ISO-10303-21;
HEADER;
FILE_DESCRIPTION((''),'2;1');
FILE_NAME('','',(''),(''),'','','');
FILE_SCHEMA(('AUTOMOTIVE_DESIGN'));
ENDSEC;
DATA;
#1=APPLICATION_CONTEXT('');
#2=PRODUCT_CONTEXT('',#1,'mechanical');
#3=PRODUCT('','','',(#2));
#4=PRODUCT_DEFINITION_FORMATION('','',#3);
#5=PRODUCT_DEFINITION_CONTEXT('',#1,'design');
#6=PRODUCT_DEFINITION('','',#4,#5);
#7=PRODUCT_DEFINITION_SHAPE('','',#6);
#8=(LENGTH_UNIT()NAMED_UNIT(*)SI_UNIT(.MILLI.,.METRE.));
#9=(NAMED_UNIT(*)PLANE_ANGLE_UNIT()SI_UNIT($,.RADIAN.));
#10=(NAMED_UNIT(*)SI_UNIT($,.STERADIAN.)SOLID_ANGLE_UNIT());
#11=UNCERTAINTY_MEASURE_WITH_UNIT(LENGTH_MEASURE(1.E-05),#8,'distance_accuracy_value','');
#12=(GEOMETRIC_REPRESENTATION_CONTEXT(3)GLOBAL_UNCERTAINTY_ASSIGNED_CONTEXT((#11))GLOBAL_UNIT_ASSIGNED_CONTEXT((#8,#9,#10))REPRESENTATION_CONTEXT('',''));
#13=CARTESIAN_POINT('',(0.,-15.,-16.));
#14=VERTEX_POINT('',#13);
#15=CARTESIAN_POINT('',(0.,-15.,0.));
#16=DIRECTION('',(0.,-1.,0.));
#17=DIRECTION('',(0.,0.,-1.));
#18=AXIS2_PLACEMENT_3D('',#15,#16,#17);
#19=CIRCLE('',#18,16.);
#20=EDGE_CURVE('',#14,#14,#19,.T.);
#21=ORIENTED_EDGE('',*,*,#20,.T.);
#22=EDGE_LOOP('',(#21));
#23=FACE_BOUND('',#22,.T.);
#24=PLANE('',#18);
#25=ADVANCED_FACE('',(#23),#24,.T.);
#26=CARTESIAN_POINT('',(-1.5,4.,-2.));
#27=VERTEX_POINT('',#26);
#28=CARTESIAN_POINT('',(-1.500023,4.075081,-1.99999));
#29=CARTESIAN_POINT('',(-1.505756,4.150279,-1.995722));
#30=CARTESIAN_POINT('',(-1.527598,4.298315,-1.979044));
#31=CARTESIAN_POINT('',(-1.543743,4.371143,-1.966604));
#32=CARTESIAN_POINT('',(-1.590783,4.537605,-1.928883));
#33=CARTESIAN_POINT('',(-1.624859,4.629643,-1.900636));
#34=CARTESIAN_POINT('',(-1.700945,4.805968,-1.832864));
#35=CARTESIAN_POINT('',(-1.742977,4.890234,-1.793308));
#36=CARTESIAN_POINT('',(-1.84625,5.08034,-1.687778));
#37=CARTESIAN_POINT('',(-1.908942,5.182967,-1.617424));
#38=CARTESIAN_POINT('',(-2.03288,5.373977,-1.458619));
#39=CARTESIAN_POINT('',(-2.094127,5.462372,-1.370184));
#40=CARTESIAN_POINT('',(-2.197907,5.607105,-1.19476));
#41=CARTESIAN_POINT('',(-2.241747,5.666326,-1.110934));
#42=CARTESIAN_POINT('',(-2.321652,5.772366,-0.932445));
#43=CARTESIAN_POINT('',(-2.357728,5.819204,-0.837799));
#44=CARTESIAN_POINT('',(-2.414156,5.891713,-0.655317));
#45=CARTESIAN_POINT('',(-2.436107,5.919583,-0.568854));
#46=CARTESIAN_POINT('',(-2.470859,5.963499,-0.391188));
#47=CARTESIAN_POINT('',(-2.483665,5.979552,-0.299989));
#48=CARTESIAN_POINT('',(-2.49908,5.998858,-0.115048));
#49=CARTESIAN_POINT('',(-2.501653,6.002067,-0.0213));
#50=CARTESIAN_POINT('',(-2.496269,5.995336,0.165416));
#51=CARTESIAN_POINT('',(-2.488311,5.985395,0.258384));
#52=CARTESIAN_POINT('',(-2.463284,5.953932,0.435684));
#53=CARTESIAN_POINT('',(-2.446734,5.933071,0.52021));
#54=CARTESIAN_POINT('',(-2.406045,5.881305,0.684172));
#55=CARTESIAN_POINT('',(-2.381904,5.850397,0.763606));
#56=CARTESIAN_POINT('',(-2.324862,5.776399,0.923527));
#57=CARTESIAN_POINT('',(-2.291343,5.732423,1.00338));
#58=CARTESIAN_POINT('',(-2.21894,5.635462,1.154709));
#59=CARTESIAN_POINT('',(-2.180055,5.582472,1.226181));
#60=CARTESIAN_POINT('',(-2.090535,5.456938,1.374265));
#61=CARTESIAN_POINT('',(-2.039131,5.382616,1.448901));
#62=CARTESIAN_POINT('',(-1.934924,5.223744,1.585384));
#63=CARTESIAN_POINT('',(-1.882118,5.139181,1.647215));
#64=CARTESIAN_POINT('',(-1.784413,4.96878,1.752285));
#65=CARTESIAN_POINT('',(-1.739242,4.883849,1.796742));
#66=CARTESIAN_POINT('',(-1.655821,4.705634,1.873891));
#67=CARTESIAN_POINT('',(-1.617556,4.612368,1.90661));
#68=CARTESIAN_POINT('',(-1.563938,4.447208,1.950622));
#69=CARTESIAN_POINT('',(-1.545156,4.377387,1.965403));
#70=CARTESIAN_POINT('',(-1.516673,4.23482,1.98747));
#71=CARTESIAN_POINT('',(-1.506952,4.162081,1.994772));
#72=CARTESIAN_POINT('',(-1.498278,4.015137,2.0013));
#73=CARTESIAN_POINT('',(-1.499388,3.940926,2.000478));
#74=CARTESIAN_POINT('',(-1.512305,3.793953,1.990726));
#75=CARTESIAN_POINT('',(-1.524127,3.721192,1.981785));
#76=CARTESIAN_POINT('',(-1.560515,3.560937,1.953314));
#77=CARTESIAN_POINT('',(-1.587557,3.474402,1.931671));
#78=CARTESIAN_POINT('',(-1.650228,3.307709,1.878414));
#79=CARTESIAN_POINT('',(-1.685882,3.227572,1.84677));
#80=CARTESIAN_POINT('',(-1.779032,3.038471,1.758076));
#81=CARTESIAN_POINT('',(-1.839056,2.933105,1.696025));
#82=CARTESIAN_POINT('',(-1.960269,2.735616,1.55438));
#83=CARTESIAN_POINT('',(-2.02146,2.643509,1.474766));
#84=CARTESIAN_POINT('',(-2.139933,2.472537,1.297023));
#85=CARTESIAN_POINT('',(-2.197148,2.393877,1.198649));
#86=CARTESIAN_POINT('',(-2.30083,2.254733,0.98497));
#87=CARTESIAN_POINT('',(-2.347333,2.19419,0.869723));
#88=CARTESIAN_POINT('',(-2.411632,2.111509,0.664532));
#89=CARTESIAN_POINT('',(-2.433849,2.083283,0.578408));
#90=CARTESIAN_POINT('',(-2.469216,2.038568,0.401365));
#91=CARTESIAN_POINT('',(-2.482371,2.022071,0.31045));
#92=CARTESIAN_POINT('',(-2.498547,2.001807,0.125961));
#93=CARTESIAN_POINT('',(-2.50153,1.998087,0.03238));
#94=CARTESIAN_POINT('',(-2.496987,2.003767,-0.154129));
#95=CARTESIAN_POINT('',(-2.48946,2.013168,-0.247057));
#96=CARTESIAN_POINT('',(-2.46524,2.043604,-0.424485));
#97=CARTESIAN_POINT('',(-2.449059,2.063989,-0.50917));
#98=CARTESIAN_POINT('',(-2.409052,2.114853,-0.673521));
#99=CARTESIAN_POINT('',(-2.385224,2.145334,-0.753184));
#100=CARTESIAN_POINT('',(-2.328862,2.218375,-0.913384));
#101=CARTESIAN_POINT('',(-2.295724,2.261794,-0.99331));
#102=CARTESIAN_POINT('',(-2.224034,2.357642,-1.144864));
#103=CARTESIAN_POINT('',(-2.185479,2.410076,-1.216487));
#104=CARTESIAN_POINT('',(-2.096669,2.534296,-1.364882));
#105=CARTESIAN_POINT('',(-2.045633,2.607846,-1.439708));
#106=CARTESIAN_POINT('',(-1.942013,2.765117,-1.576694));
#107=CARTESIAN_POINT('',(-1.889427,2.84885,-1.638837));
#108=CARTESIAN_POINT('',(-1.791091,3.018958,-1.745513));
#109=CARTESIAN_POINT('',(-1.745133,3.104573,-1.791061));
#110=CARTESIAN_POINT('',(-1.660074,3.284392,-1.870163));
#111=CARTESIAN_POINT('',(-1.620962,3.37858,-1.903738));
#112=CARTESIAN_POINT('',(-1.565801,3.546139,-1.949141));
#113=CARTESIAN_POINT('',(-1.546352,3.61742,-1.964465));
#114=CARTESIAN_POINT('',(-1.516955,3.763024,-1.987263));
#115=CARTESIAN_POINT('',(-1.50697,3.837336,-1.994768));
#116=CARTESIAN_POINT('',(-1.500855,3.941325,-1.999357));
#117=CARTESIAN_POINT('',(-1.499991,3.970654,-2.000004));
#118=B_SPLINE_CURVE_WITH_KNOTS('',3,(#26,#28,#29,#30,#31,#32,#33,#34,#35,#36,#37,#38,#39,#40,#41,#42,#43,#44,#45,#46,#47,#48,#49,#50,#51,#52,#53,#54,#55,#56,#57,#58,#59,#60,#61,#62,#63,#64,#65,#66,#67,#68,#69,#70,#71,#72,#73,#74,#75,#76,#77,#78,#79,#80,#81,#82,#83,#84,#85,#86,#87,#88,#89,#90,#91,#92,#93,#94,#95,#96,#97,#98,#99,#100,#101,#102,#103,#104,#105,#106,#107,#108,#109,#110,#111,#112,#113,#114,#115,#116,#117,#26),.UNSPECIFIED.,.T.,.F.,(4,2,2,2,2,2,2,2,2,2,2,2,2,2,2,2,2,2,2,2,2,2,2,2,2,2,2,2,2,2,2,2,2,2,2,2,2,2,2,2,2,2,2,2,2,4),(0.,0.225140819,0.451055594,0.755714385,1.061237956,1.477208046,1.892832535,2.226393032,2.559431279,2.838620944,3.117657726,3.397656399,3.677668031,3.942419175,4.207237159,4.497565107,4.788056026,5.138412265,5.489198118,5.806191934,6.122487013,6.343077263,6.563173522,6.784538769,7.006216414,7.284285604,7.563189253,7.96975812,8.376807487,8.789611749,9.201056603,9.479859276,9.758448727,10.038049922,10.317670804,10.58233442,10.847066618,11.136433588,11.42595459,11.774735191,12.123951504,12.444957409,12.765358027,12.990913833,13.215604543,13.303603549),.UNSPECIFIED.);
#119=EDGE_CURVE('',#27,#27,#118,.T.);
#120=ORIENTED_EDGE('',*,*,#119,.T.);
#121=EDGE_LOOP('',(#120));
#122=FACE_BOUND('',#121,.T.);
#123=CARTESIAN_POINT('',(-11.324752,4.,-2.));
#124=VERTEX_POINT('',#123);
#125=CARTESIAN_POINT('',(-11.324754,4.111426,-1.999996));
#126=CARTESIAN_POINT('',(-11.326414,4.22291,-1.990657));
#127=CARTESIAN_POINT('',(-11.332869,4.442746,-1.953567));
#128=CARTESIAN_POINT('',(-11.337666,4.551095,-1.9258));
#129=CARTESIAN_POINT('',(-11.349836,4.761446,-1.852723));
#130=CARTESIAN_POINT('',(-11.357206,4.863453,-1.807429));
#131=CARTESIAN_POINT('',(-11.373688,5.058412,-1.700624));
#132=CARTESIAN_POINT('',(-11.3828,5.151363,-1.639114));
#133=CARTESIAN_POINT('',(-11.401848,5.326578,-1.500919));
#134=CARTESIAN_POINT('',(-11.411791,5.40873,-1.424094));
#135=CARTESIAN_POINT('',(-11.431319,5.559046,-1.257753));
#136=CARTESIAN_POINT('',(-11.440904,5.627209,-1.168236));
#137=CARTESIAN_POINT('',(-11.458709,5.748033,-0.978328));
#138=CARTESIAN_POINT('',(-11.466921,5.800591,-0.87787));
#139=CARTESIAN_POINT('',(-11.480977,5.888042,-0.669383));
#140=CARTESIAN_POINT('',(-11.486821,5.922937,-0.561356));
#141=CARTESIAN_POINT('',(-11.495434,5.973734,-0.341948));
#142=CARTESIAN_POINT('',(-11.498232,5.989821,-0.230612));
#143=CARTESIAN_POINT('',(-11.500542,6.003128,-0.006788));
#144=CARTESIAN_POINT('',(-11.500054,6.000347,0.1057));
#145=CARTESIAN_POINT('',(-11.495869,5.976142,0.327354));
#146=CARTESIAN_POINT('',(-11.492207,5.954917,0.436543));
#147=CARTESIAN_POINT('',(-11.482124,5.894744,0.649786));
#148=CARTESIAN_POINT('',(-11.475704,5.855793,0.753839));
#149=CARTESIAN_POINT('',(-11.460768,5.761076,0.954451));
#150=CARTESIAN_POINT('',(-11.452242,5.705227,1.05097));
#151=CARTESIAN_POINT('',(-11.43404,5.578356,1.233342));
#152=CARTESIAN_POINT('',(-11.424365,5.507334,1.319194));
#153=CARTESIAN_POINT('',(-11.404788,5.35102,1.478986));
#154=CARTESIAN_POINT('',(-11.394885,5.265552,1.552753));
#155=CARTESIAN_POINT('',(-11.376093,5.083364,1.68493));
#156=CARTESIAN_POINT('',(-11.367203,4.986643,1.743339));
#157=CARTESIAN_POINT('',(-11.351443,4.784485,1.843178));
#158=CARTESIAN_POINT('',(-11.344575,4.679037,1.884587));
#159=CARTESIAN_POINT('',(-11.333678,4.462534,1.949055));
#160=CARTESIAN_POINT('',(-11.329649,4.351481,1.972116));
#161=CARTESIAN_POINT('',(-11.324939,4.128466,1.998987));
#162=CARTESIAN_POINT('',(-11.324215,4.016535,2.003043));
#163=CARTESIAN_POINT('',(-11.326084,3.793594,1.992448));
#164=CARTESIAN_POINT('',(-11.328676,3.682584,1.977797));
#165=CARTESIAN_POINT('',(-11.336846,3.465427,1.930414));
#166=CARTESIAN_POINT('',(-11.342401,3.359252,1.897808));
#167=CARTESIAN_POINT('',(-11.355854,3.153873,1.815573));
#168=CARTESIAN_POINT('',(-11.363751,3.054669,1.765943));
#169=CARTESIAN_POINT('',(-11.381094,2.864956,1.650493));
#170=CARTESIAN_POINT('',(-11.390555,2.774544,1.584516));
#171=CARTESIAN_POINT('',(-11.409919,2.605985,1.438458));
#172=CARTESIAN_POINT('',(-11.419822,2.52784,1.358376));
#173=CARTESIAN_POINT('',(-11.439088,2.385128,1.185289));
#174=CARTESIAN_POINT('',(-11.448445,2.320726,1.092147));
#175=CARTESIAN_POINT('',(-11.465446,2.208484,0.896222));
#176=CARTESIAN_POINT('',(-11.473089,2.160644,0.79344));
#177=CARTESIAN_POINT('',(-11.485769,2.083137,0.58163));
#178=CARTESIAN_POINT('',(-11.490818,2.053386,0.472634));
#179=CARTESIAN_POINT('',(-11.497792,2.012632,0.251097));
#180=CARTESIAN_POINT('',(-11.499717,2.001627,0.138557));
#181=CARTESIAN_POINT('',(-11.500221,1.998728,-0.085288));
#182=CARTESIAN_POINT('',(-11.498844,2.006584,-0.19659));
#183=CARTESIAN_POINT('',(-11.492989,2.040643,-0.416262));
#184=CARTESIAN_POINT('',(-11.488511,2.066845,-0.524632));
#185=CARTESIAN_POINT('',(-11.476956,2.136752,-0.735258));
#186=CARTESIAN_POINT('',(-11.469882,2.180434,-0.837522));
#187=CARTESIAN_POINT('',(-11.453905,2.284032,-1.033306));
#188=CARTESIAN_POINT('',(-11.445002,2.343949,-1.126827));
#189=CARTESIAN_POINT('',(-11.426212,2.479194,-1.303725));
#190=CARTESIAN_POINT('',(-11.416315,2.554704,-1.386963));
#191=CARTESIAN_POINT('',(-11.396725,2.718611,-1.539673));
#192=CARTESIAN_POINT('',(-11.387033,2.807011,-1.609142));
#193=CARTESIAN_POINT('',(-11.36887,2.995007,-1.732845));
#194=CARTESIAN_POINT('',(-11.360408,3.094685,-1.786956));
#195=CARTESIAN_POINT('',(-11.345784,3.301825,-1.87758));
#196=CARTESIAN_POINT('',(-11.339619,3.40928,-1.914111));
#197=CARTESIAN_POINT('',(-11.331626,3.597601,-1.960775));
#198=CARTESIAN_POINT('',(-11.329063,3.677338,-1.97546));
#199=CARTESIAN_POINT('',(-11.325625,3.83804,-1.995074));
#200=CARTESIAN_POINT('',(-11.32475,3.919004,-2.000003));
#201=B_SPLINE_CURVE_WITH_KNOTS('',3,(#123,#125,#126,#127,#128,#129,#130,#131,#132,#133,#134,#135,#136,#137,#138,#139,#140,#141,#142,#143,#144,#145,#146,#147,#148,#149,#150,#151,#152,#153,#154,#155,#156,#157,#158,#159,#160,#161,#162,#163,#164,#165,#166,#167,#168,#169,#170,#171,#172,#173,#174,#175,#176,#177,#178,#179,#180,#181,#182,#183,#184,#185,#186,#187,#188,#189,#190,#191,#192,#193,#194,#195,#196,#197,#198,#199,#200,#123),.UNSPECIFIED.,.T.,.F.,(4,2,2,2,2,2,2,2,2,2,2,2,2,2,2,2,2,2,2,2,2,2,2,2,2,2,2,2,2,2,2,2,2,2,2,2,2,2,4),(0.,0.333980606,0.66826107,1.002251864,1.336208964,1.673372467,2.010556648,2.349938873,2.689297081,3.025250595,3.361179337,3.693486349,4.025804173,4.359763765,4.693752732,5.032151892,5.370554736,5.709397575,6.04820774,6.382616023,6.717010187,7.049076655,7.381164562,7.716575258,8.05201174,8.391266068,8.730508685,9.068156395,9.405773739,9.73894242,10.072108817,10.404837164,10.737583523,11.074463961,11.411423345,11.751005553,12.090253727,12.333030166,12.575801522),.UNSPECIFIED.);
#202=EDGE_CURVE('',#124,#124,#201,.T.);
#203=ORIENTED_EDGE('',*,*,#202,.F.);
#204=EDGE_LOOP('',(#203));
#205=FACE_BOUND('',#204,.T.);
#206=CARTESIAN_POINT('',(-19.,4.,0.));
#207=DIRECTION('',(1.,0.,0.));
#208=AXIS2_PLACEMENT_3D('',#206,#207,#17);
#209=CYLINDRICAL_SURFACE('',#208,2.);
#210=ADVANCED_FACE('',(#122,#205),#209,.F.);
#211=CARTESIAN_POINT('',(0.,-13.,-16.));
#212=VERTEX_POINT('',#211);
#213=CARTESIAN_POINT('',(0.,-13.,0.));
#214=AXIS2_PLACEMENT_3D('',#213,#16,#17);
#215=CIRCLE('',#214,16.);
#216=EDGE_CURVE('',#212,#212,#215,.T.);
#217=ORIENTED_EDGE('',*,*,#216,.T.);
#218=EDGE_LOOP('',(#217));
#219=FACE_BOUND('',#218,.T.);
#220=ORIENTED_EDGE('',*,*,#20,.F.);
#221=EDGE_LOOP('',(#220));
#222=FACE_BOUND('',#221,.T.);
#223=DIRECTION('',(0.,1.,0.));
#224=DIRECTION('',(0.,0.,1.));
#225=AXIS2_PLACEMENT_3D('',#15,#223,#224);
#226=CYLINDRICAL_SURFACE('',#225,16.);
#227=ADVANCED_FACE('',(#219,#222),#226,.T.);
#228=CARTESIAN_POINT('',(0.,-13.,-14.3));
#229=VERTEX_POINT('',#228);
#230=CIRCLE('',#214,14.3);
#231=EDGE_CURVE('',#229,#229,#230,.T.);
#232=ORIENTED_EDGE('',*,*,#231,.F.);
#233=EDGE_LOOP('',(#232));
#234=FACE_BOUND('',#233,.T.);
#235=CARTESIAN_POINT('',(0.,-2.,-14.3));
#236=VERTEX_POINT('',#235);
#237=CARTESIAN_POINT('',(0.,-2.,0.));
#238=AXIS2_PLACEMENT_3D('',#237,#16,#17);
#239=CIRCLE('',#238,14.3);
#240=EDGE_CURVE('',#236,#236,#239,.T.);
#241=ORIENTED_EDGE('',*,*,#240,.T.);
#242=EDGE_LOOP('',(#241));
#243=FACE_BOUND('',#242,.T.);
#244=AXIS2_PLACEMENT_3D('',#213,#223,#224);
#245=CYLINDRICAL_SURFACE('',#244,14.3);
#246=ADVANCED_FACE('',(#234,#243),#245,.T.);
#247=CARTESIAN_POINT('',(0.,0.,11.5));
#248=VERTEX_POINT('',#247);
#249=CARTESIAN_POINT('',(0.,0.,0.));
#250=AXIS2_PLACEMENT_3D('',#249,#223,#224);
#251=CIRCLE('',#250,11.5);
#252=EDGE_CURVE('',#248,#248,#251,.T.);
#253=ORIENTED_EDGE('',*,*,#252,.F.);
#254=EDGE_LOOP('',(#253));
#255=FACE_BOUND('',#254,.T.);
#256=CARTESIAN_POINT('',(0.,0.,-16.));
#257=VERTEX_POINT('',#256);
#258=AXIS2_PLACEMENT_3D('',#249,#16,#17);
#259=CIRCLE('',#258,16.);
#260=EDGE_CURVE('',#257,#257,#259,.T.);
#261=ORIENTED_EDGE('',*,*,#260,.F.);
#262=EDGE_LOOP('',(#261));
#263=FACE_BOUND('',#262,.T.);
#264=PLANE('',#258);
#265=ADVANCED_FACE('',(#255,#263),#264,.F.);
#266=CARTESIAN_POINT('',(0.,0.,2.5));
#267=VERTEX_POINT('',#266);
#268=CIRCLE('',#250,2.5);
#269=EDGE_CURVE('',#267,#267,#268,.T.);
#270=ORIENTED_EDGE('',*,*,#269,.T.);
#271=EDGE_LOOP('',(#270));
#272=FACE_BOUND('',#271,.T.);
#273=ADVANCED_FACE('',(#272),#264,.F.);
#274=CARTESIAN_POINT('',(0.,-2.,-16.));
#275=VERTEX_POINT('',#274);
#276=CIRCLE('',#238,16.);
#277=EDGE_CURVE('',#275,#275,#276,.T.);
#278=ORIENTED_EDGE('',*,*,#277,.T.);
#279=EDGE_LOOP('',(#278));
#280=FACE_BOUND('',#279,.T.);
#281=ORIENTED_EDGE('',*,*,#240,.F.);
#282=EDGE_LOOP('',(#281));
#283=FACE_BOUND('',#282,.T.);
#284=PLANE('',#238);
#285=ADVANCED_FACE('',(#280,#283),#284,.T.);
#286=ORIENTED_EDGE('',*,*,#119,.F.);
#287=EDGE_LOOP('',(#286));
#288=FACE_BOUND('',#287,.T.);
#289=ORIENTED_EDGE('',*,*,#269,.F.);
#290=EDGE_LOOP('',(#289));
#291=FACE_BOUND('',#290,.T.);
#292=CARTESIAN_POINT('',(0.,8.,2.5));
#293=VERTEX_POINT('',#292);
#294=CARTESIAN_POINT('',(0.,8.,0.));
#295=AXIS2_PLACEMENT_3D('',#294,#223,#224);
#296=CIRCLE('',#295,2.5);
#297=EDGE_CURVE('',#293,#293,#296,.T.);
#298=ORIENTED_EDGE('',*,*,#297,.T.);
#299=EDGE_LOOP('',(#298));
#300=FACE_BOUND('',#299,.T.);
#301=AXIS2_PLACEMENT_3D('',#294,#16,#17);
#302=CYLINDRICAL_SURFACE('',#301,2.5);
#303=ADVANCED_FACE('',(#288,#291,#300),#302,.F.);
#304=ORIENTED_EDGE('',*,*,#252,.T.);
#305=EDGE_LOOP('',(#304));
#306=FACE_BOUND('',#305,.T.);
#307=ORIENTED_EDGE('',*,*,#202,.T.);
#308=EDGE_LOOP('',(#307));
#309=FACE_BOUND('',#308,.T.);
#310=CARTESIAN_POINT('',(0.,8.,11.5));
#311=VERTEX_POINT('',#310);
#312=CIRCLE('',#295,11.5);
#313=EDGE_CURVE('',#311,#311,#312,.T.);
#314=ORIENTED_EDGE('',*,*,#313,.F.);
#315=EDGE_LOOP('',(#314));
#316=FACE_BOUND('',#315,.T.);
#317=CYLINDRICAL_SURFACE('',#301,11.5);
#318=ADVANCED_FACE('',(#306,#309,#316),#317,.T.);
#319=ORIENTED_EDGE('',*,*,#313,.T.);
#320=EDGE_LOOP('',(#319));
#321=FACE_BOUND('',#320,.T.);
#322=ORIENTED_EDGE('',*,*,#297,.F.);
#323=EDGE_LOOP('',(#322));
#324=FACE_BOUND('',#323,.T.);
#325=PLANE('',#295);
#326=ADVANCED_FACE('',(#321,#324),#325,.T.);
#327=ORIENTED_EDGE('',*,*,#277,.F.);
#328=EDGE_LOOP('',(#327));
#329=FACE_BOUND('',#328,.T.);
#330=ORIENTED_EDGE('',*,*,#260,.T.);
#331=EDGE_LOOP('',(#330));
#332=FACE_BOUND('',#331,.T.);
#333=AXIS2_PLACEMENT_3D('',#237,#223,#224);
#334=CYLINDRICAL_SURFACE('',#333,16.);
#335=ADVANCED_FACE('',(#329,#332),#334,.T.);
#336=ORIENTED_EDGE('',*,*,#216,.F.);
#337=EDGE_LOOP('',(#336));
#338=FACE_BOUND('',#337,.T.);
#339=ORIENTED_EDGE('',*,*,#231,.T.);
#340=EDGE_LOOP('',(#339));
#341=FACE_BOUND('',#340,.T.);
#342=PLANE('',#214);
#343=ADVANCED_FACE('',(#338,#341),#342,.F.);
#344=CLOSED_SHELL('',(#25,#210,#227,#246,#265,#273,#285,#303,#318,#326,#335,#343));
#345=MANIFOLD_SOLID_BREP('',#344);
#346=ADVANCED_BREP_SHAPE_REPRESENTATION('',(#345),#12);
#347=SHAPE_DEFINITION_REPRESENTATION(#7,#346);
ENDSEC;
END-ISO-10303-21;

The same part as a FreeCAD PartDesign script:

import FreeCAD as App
import Part
import Sketcher
Q = App.Units.Quantity

doc = App.newDocument("Part")
body = doc.addObject("PartDesign::Body", "Body")

sketch1 = body.newObject("Sketcher::SketchObject", "Sketch")
sketch1.AttachmentSupport = (doc.getObject("XZ_Plane"), [""])
sketch1.MapMode = "FlatFace"
sketch1.addGeometry([
    Part.Circle(App.Vector(0, 0, 0), App.Vector(0, 0, 1), 11.5),
    Part.Circle(App.Vector(0, 0, 0), App.Vector(0, 0, 1), 2.5),
], False)
sketch1.addConstraint([
    Sketcher.Constraint("Coincident", 0, 3, -1, 1),
    Sketcher.Constraint("Coincident", 1, 3, -1, 1),
    Sketcher.Constraint("Diameter", 0, Q("23 mm")),
    Sketcher.Constraint("Diameter", 1, Q("5 mm")),
])
pad1 = body.newObject("PartDesign::Pad", "Pad")
pad1.Profile = sketch1
pad1.Length = 8
pad1.Reversed = True

sketch2 = body.newObject("Sketcher::SketchObject", "Sketch001")
sketch2.AttachmentSupport = (doc.getObject("XZ_Plane"), [""])
sketch2.MapMode = "FlatFace"
sketch2.addGeometry(Part.Circle(App.Vector(0, 0, 0), App.Vector(0, 0, 1), 16), False)
sketch2.addConstraint([
    Sketcher.Constraint("Coincident", 0, 3, -1, 1),
    Sketcher.Constraint("Diameter", 0, Q("32 mm")),
])
pad2 = body.newObject("PartDesign::Pad", "Pad001")
pad2.Profile = sketch2
pad2.Length = 2

sketch3 = body.newObject("Sketcher::SketchObject", "Sketch002")
sketch3.AttachmentSupport = (doc.getObject("XZ_Plane"), [""])
sketch3.MapMode = "FlatFace"
sketch3.AttachmentOffset = App.Placement(App.Vector(0, 0, 2), App.Rotation())
sketch3.addGeometry(Part.Circle(App.Vector(0, 0, 0), App.Vector(0, 0, 1), 14), False)
sketch3.addConstraint([
    Sketcher.Constraint("Coincident", 0, 3, -1, 1),
    Sketcher.Constraint("Diameter", 0, Q("28.6 mm")),
])
pad3 = body.newObject("PartDesign::Pad", "Pad002")
pad3.Profile = sketch3
pad3.Length = 11

sketch4 = body.newObject("Sketcher::SketchObject", "Sketch003")
sketch4.AttachmentSupport = (doc.getObject("XZ_Plane"), [""])
sketch4.MapMode = "FlatFace"
sketch4.AttachmentOffset = App.Placement(App.Vector(0, 0, 13), App.Rotation())
sketch4.addGeometry(Part.Circle(App.Vector(0, 0, 0), App.Vector(0, 0, 1), 16), False)
sketch4.addConstraint([
    Sketcher.Constraint("Coincident", 0, 3, -1, 1),
    Sketcher.Constraint("Diameter", 0, Q("32 mm")),
])
pad4 = body.newObject("PartDesign::Pad", "Pad003")
pad4.Profile = sketch4
pad4.Length = 2

sketch5 = body.newObject("Sketcher::SketchObject", "Sketch004")
sketch5.AttachmentSupport = (doc.getObject("YZ_Plane"), [""])
sketch5.MapMode = "FlatFace"
sketch5.addGeometry(Part.Circle(App.Vector(4, 0, 0), App.Vector(0, 0, 1), 2), False)
sketch5.addConstraint([
    Sketcher.Constraint("PointOnObject", 0, 3, -1),
    Sketcher.Constraint("Diameter", 0, Q("4 mm")),
    Sketcher.Constraint("DistanceX", -1, 1, 0, 3, Q("4 mm")),
])
pocket1 = body.newObject("PartDesign::Pocket", "Pocket")
pocket1.Profile = sketch5
pocket1.Length = 19

doc.recompute()
